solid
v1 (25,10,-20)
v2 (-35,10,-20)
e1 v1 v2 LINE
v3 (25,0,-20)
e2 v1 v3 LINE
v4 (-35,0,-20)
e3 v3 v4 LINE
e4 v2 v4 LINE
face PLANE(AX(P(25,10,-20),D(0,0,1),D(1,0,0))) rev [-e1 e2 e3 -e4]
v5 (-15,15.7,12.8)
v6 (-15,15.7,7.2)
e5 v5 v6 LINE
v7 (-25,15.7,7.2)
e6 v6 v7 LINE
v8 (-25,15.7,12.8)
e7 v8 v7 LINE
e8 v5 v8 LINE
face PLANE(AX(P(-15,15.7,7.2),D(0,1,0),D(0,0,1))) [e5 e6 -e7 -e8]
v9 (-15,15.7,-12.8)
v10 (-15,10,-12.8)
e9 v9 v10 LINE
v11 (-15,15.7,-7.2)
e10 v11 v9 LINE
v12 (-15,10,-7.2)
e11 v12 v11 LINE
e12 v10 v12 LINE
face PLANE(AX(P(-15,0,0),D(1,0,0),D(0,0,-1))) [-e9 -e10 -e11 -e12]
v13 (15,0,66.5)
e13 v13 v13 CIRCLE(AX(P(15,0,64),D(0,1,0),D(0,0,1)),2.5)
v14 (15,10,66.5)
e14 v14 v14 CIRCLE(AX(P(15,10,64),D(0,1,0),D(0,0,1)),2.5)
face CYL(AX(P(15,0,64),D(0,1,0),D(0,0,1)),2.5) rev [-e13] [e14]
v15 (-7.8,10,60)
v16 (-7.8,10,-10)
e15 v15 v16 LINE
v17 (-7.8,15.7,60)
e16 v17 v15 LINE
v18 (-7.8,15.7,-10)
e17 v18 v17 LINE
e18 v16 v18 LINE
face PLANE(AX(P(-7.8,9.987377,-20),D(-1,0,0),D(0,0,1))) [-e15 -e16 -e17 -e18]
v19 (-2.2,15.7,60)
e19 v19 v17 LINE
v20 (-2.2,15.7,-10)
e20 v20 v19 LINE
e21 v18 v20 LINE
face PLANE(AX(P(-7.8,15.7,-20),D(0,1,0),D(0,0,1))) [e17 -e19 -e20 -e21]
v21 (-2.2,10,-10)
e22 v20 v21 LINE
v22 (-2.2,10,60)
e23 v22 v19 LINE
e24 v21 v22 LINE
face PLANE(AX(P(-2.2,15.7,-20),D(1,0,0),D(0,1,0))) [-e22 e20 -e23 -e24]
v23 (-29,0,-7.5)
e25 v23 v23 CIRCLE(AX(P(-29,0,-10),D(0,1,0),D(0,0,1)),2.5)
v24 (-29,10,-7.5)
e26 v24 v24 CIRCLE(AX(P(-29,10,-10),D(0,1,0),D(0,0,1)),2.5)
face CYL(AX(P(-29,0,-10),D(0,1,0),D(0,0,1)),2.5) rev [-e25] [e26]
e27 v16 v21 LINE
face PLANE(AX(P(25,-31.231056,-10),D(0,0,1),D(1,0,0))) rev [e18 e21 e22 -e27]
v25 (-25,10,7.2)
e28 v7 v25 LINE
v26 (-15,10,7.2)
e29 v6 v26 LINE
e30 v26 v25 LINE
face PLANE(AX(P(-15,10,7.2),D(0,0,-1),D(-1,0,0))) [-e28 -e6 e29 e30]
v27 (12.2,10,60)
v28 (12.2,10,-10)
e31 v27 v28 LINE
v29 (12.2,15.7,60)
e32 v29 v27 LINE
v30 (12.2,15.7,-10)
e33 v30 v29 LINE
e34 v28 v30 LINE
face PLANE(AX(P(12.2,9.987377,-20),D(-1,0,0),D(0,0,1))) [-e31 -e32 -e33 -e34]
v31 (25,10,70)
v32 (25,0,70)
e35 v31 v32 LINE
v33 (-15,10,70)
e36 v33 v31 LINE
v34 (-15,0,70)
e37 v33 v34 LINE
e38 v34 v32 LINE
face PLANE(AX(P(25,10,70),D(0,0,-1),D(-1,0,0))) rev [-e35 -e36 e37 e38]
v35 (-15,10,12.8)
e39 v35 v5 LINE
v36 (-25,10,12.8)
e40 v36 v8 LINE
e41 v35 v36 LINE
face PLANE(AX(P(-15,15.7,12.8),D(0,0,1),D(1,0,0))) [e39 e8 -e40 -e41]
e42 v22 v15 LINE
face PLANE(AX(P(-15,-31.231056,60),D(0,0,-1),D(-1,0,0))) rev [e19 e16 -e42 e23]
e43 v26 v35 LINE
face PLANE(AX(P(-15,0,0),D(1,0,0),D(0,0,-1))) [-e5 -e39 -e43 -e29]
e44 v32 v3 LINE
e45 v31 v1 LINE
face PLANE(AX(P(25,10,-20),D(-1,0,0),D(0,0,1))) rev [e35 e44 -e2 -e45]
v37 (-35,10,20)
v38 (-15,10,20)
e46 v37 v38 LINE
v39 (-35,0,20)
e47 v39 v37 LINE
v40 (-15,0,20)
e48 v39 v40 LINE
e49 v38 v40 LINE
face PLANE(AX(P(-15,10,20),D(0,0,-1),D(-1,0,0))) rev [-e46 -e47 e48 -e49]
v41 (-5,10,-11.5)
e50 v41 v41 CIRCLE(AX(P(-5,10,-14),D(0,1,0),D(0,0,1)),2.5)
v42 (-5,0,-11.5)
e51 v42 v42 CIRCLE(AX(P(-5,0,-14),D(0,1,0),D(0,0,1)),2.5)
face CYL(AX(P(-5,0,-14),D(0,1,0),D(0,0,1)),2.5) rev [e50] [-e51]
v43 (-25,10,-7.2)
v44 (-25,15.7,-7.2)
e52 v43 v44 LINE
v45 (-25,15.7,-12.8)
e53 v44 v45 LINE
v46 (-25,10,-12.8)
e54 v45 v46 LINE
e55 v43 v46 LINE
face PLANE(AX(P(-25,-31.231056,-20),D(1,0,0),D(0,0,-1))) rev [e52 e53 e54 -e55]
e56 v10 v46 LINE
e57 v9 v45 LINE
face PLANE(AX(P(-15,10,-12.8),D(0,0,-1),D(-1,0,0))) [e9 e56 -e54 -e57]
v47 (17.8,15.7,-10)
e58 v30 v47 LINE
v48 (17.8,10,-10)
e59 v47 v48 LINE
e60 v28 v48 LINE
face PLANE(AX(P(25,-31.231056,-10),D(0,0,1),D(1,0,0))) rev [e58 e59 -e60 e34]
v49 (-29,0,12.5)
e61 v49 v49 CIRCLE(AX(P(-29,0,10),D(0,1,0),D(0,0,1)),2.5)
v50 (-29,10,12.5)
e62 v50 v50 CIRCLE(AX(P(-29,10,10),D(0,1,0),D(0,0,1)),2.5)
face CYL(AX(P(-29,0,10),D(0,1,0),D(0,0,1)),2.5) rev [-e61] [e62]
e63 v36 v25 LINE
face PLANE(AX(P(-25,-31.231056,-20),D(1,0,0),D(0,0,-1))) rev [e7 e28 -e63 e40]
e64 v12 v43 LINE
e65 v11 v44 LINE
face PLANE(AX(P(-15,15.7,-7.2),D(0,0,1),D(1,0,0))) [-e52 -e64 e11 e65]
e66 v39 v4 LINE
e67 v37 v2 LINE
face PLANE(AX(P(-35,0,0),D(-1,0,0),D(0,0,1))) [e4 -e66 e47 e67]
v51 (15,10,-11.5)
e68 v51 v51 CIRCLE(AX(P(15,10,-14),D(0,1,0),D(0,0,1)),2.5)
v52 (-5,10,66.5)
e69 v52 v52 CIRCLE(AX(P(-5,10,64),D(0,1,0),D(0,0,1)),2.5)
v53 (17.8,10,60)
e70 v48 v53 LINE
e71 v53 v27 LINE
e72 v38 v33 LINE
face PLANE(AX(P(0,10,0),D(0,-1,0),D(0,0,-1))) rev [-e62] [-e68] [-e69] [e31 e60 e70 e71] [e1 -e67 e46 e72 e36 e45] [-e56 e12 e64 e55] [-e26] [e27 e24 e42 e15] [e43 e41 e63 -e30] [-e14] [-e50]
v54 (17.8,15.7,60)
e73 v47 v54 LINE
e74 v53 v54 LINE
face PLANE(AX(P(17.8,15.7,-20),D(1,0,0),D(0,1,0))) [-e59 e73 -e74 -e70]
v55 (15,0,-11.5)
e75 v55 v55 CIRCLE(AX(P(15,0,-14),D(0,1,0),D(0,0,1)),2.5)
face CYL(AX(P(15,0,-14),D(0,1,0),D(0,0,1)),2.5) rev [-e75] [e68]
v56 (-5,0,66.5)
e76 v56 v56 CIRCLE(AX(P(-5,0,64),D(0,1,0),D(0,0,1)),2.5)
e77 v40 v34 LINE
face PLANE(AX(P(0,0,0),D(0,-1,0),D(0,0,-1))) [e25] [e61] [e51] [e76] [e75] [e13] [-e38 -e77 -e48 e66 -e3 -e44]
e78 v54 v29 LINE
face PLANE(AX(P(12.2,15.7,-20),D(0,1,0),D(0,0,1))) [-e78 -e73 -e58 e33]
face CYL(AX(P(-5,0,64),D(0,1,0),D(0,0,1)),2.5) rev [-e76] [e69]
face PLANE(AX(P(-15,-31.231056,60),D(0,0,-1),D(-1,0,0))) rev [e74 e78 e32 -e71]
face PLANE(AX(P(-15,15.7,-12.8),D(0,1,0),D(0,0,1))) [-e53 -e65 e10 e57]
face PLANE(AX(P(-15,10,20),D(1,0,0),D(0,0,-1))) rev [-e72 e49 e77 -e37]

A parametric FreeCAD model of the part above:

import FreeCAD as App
import Part
import Sketcher
from FreeCAD import Vector


def add_polygon(sketch, points):
    """Adds a closed chain of lines whose ends are joined by coincident constraints."""
    first, n = sketch.GeometryCount, len(points)
    for a, b in zip(points, points[1:] + points[:1]):
        sketch.addGeometry(Part.LineSegment(App.Vector(*a, 0), App.Vector(*b, 0)), False)
    for i in range(n):
        sketch.addConstraint(Sketcher.Constraint("Coincident", first + i, 2, first + (i + 1) % n, 1))

doc = App.newDocument("Part")
body = doc.addObject("PartDesign::Body", "Body")

# Sketch on XZ plane
sketch1 = body.newObject("Sketcher::SketchObject", "Sketch")
sketch1.AttachmentSupport = (doc.getObject("XZ_Plane"), [""])
sketch1.MapMode = "FlatFace"
add_polygon(sketch1, [(25, -20), (-65, -20), (-65, 20), (-15, 20), (-15, 70), (25, 70)])  # lines 0-5
sketch1.addConstraint([
    Sketcher.Constraint("Horizontal", 0),
    Sketcher.Constraint("Vertical", 1),
    Sketcher.Constraint("Horizontal", 2),
    Sketcher.Constraint("Vertical", 3),
    Sketcher.Constraint("Horizontal", 4),
    Sketcher.Constraint("Vertical", 5),
    Sketcher.Constraint("Equal", 4, 1),
    Sketcher.Constraint("Equal", 2, 3),
    Sketcher.Constraint("DistanceX", 0, 2, 0, 1, 90.0),
    Sketcher.Constraint("DistanceX", 2, 1, 2, 2, 50.0),
    Sketcher.Constraint("DistanceX", 0, 2, -1, 1, 65.0),
    Sketcher.Constraint("DistanceY", 0, 2, -1, 1, 20.0),
])
pad1 = body.newObject("PartDesign::Pad", "Pad")
pad1.Profile = sketch1
pad1.Length = 10
pad1.Reversed = True

# Sketch on XY plane
sketch2 = body.newObject("Sketcher::SketchObject", "Sketch001")
sketch2.AttachmentSupport = (doc.getObject("XY_Plane"), [""])
sketch2.MapMode = "FlatFace"
sketch2.AttachmentOffset = App.Placement(Vector(0, 0, 70), App.Rotation())
add_polygon(sketch2, [(12, 16), (12, 10), (18, 10), (18, 16)])  # lines 0-3
add_polygon(sketch2, [(-8, 16), (-8, 10), (-2, 10), (-2, 16)])  # lines 4-7
sketch2.addConstraint([
    Sketcher.Constraint("Vertical", 0),
    Sketcher.Constraint("Horizontal", 1),
    Sketcher.Constraint("Vertical", 2),
    Sketcher.Constraint("Horizontal", 3),
    Sketcher.Constraint("Vertical", 4),
    Sketcher.Constraint("Horizontal", 5),
    Sketcher.Constraint("Vertical", 6),
    Sketcher.Constraint("Horizontal", 7),
    Sketcher.Constraint("Horizontal", 1, 2, 4, 2),
    Sketcher.Constraint("Horizontal", 3, 2, 6, 2),
    Sketcher.Constraint("Equal", 3, 5),
    Sketcher.Constraint("DistanceX", 1, 1, 1, 2, 5.6),
    Sketcher.Constraint("DistanceX", 4, 2, 0, 2, 20.0),
    Sketcher.Constraint("DistanceX", -1, 1, 0, 2, 12.2),
    Sketcher.Constraint("DistanceY", -1, 1, 2, 2, 15.7),
    Sketcher.Constraint("DistanceY", 0, 2, 0, 1, 5.712623),
])
pad2 = body.newObject("PartDesign::Pad", "Pad001")
pad2.Profile = sketch2
pad2.Length = 90
pad2.Reversed = True

# Sketch on YZ plane
sketch3 = body.newObject("Sketcher::SketchObject", "Sketch002")
sketch3.AttachmentSupport = (doc.getObject("YZ_Plane"), [""])
sketch3.MapMode = "FlatFace"
sketch3.AttachmentOffset = App.Placement(Vector(0, 0, -65), App.Rotation())
add_polygon(sketch3, [(16, 7), (10, 7), (10, 13), (16, 13)])  # lines 0-3
add_polygon(sketch3, [(16, -13), (10, -13), (10, -7), (16, -7)])  # lines 4-7
sketch3.addConstraint([
    Sketcher.Constraint("Horizontal", 0),
    Sketcher.Constraint("Vertical", 1),
    Sketcher.Constraint("Horizontal", 2),
    Sketcher.Constraint("Vertical", 3),
    Sketcher.Constraint("Horizontal", 4),
    Sketcher.Constraint("Vertical", 5),
    Sketcher.Constraint("Horizontal", 6),
    Sketcher.Constraint("Vertical", 7),
    Sketcher.Constraint("Symmetric", 1, 2, 4, 2, -1),
    Sketcher.Constraint("Symmetric", 3, 2, 6, 2, -1),
    Sketcher.Constraint("DistanceX", 0, 2, 0, 1, 5.7),
    Sketcher.Constraint("DistanceY", 1, 1, 1, 2, 5.6),
    Sketcher.Constraint("DistanceX", -1, 1, 0, 2, 10.0),
    Sketcher.Constraint("DistanceY", 4, 2, 0, 2, 20.0),
])
pad3 = body.newObject("PartDesign::Pad", "Pad002")
pad3.Profile = sketch3
pad3.Length = 50

# Sketch on YZ plane
sketch4 = body.newObject("Sketcher::SketchObject", "Sketch003")
sketch4.AttachmentSupport = (doc.getObject("YZ_Plane"), [""])
sketch4.MapMode = "FlatFace"
sketch4.AttachmentOffset = App.Placement(Vector(0, 0, -65), App.Rotation())
add_polygon(sketch4, [(28, -28), (-28, -28), (-28, 28), (28, 28)])  # lines 0-3
sketch4.addConstraint([
    Sketcher.Constraint("Horizontal", 0),
    Sketcher.Constraint("Vertical", 1),
    Sketcher.Constraint("Horizontal", 2),
    Sketcher.Constraint("Vertical", 3),
    Sketcher.Constraint("Symmetric", 0, 2, 2, 2, -1, 1),
    Sketcher.Constraint("DistanceX", 0, 2, 0, 1, 55.923287),
    Sketcher.Constraint("DistanceY", 1, 1, 1, 2, 56.928574),
])
pocket1 = body.newObject("PartDesign::Pocket", "Pocket")
pocket1.Profile = sketch4
pocket1.Length = 30
pocket1.Reversed = True

# Sketch on XZ plane
sketch5 = body.newObject("Sketcher::SketchObject", "Sketch004")
sketch5.AttachmentSupport = (doc.getObject("XZ_Plane"), [""])
sketch5.MapMode = "FlatFace"
sketch5.AttachmentOffset = App.Placement(Vector(0, 0, -15.7), App.Rotation())
add_polygon(sketch5, [(-15, 60), (-15, 70), (25, 70), (25, 60)])  # lines 0-3
add_polygon(sketch5, [(-15, -20), (-15, -10), (25, -10), (25, -20)])  # lines 4-7
add_polygon(sketch5, [(-35, -20), (-35, 20), (-25, 20), (-25, -20)])  # lines 8-11
sketch5.addConstraint([
    Sketcher.Constraint("Vertical", 0),
    Sketcher.Constraint("Horizontal", 1),
    Sketcher.Constraint("Vertical", 2),
    Sketcher.Constraint("Horizontal", 3),
    Sketcher.Constraint("Vertical", 4),
    Sketcher.Constraint("Horizontal", 5),
    Sketcher.Constraint("Vertical", 6),
    Sketcher.Constraint("Horizontal", 7),
    Sketcher.Constraint("Vertical", 8),
    Sketcher.Constraint("Horizontal", 9),
    Sketcher.Constraint("Vertical", 10),
    Sketcher.Constraint("Horizontal", 11),
    Sketcher.Constraint("Symmetric", 6, 2, 9, 2, -1, 1),
    Sketcher.Constraint("Horizontal", 7, 2, 10, 2),
    Sketcher.Constraint("Vertical", 3, 2, 4, 2),
    Sketcher.Constraint("Vertical", 2, 2, 5, 2),
    Sketcher.Constraint("Equal", 11, 0),
    Sketcher.Constraint("Equal", 2, 4),
    Sketcher.Constraint("Equal", 7, 8),
    Sketcher.Constraint("DistanceX", 1, 1, 1, 2, 40.0),
    Sketcher.Constraint("DistanceX", 9, 1, 9, 2, 10.0),
    Sketcher.Constraint("DistanceX", 0, 2, -1, 1, 15.0),
    Sketcher.Constraint("DistanceY", -1, 1, 0, 2, 70.0),
])
pocket2 = body.newObject("PartDesign::Pocket", "Pocket001")
pocket2.Profile = sketch5
pocket2.Length = 5.7
pocket2.Reversed = True

# Sketch on XZ plane
sketch6 = body.newObject("Sketcher::SketchObject", "Sketch005")
sketch6.AttachmentSupport = (doc.getObject("XZ_Plane"), [""])
sketch6.MapMode = "FlatFace"
sketch6.AttachmentOffset = App.Placement(Vector(0, 0, -10), App.Rotation())
sketch6.addGeometry([
    Part.Circle(Vector(-29, -10, 0), Vector(0, 0, 1), 2.5),  # 0
    Part.Circle(Vector(-29, 10, 0), Vector(0, 0, 1), 2.5),  # 1
    Part.Circle(Vector(15, -14, 0), Vector(0, 0, 1), 2.5),  # 2
    Part.Circle(Vector(-5, -14, 0), Vector(0, 0, 1), 2.5),  # 3
    Part.Circle(Vector(-5, 64, 0), Vector(0, 0, 1), 2.5),  # 4
    Part.Circle(Vector(15, 64, 0), Vector(0, 0, 1), 2.5),  # 5
], False)
sketch6.addConstraint([
    Sketcher.Constraint("Equal", 0, 1),
    Sketcher.Constraint("Equal", 1, 2),
    Sketcher.Constraint("Equal", 2, 3),
    Sketcher.Constraint("Equal", 3, 4),
    Sketcher.Constraint("Equal", 4, 5),
    Sketcher.Constraint("Symmetric", 0, 3, 1, 3, -1),
    Sketcher.Constraint("Horizontal", 2, 3, 3, 3),
    Sketcher.Constraint("Horizontal", 4, 3, 5, 3),
    Sketcher.Constraint("Vertical", 3, 3, 4, 3),
    Sketcher.Constraint("Vertical", 2, 3, 5, 3),
    Sketcher.Constraint("Diameter", 0, 5.0),
    Sketcher.Constraint("DistanceX", 0, 3, -1, 1, 29.0),
    Sketcher.Constraint("DistanceY", 0, 3, -1, 1, 10.0),
    Sketcher.Constraint("DistanceX", -1, 1, 2, 3, 15.0),
    Sketcher.Constraint("DistanceY", 2, 3, -1, 1, 14.0),
    Sketcher.Constraint("DistanceX", 3, 3, -1, 1, 5.0),
    Sketcher.Constraint("DistanceY", -1, 1, 4, 3, 64.0),
])
pocket3 = body.newObject("PartDesign::Pocket", "Pocket002")
pocket3.Profile = sketch6
pocket3.Type = "ThroughAll"
pocket3.Reversed = True

doc.recompute()
